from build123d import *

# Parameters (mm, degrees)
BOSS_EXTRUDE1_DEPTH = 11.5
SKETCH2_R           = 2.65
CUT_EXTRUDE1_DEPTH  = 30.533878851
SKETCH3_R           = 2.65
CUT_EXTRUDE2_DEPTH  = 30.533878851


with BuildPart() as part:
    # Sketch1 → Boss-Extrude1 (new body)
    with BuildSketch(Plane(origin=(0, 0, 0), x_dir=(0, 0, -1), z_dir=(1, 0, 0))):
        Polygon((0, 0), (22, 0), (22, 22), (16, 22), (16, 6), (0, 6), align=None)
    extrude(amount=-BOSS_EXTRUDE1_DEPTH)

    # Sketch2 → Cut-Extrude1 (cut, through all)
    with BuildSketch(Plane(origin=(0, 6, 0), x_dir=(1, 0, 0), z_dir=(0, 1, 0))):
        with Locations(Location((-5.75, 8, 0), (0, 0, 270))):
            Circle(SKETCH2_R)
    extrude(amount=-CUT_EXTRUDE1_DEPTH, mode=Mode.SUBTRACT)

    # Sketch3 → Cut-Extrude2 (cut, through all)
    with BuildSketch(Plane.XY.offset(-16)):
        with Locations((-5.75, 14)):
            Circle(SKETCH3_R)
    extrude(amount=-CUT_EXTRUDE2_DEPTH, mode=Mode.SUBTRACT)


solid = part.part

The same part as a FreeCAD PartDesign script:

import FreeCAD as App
import Part
import Sketcher
Q = App.Units.Quantity

doc = App.newDocument("Part")
params = doc.addObject("Spreadsheet::Sheet", "Params")
for row, (alias, value) in enumerate([
    ("sketch1_width", "22 mm"),
    ("sketch1_width2", "16 mm"),
    ("pad1_length", "11.5 mm"),
    ("sketch2_diameter", "5.3 mm"),
    ("sketch3_diameter", "5.3 mm"),
], start=1):
    params.set(f"A{row}", alias)
    params.set(f"B{row}", "=" + value)
    params.setAlias(f"B{row}", alias)

body = doc.addObject("PartDesign::Body", "Body")

sketch1 = doc.addObject("Sketcher::SketchObject", "Sketch")
body.addObject(sketch1)
sketch1.AttachmentSupport = (doc.YZ_Plane, [""])
sketch1.MapMode = "FlatFace"
sketch1.addGeometry([
    Part.LineSegment(App.Vector(0, 0, 0), App.Vector(0, -22, 0)),
    Part.LineSegment(App.Vector(0, -22, 0), App.Vector(22, -22, 0)),
    Part.LineSegment(App.Vector(22, -22, 0), App.Vector(22, -16, 0)),
    Part.LineSegment(App.Vector(22, -16, 0), App.Vector(6, -16, 0)),
    Part.LineSegment(App.Vector(6, -16, 0), App.Vector(6, 0, 0)),
    Part.LineSegment(App.Vector(6, 0, 0), App.Vector(0, 0, 0)),
], False)
sketch1.addConstraint([
    Sketcher.Constraint("Coincident", 0, 2, 1, 1),
    Sketcher.Constraint("Coincident", 1, 2, 2, 1),
    Sketcher.Constraint("Coincident", 2, 2, 3, 1),
    Sketcher.Constraint("Coincident", 3, 2, 4, 1),
    Sketcher.Constraint("Coincident", 4, 2, 5, 1),
    Sketcher.Constraint("Coincident", 5, 2, 0, 1),
    Sketcher.Constraint("Vertical", 0),
    Sketcher.Constraint("Horizontal", 1),
    Sketcher.Constraint("Vertical", 2),
    Sketcher.Constraint("Horizontal", 3),
    Sketcher.Constraint("Vertical", 4),
    Sketcher.Constraint("Horizontal", 5),
    Sketcher.Constraint("Coincident", 5, 2, -1, 1),
    Sketcher.Constraint("Equal", 1, 0),
    Sketcher.Constraint("Equal", 5, 2),
    Sketcher.Constraint("DistanceX", 1, 1, 1, 2, Q("22 mm")),
    Sketcher.Constraint("DistanceX", 3, 2, 3, 1, Q("16 mm")),
])
sketch1.setExpression("Constraints[15]", "Params.sketch1_width")
sketch1.setExpression("Constraints[16]", "Params.sketch1_width2")
pad1 = doc.addObject("PartDesign::Pad", "Pad")
body.addObject(pad1)
pad1.Profile = sketch1
pad1.setExpression("Length", "Params.pad1_length")
pad1.Reversed = True

sketch2 = doc.addObject("Sketcher::SketchObject", "Sketch001")
body.addObject(sketch2)
sketch2.AttachmentSupport = (doc.XZ_Plane, [""])
sketch2.MapMode = "FlatFace"
sketch2.AttachmentOffset = App.Placement(App.Vector(0, 0, -6), App.Rotation())
sketch2.addGeometry(Part.Circle(App.Vector(-5.8, -8, 0), App.Vector(0, 0, 1), 2.6), False)
sketch2.addConstraint([
    Sketcher.Constraint("Diameter", 0, Q("5.3 mm")),
    Sketcher.Constraint("DistanceY", 0, 3, -1, 1, Q("8 mm")),
    Sketcher.Constraint("DistanceX", 0, 3, -1, 1, Q("5.75 mm")),
])
sketch2.setExpression("Constraints[0]", "Params.sketch2_diameter")
pocket1 = doc.addObject("PartDesign::Pocket", "Pocket")
body.addObject(pocket1)
pocket1.Profile = sketch2
pocket1.Type = "ThroughAll"
pocket1.Reversed = True

sketch3 = doc.addObject("Sketcher::SketchObject", "Sketch002")
body.addObject(sketch3)
sketch3.AttachmentSupport = (doc.XY_Plane, [""])
sketch3.MapMode = "FlatFace"
sketch3.AttachmentOffset = App.Placement(App.Vector(0, 0, -16), App.Rotation())
sketch3.addGeometry(Part.Circle(App.Vector(-5.8, 14, 0), App.Vector(0, 0, 1), 2.6), False)
sketch3.addConstraint([
    Sketcher.Constraint("Diameter", 0, Q("5.3 mm")),
    Sketcher.Constraint("DistanceY", -1, 1, 0, 3, Q("14 mm")),
    Sketcher.Constraint("DistanceX", 0, 3, -1, 1, Q("5.75 mm")),
])
sketch3.setExpression("Constraints[0]", "Params.sketch3_diameter")
pocket2 = doc.addObject("PartDesign::Pocket", "Pocket001")
body.addObject(pocket2)
pocket2.Profile = sketch3
pocket2.Type = "ThroughAll"

doc.recompute()
